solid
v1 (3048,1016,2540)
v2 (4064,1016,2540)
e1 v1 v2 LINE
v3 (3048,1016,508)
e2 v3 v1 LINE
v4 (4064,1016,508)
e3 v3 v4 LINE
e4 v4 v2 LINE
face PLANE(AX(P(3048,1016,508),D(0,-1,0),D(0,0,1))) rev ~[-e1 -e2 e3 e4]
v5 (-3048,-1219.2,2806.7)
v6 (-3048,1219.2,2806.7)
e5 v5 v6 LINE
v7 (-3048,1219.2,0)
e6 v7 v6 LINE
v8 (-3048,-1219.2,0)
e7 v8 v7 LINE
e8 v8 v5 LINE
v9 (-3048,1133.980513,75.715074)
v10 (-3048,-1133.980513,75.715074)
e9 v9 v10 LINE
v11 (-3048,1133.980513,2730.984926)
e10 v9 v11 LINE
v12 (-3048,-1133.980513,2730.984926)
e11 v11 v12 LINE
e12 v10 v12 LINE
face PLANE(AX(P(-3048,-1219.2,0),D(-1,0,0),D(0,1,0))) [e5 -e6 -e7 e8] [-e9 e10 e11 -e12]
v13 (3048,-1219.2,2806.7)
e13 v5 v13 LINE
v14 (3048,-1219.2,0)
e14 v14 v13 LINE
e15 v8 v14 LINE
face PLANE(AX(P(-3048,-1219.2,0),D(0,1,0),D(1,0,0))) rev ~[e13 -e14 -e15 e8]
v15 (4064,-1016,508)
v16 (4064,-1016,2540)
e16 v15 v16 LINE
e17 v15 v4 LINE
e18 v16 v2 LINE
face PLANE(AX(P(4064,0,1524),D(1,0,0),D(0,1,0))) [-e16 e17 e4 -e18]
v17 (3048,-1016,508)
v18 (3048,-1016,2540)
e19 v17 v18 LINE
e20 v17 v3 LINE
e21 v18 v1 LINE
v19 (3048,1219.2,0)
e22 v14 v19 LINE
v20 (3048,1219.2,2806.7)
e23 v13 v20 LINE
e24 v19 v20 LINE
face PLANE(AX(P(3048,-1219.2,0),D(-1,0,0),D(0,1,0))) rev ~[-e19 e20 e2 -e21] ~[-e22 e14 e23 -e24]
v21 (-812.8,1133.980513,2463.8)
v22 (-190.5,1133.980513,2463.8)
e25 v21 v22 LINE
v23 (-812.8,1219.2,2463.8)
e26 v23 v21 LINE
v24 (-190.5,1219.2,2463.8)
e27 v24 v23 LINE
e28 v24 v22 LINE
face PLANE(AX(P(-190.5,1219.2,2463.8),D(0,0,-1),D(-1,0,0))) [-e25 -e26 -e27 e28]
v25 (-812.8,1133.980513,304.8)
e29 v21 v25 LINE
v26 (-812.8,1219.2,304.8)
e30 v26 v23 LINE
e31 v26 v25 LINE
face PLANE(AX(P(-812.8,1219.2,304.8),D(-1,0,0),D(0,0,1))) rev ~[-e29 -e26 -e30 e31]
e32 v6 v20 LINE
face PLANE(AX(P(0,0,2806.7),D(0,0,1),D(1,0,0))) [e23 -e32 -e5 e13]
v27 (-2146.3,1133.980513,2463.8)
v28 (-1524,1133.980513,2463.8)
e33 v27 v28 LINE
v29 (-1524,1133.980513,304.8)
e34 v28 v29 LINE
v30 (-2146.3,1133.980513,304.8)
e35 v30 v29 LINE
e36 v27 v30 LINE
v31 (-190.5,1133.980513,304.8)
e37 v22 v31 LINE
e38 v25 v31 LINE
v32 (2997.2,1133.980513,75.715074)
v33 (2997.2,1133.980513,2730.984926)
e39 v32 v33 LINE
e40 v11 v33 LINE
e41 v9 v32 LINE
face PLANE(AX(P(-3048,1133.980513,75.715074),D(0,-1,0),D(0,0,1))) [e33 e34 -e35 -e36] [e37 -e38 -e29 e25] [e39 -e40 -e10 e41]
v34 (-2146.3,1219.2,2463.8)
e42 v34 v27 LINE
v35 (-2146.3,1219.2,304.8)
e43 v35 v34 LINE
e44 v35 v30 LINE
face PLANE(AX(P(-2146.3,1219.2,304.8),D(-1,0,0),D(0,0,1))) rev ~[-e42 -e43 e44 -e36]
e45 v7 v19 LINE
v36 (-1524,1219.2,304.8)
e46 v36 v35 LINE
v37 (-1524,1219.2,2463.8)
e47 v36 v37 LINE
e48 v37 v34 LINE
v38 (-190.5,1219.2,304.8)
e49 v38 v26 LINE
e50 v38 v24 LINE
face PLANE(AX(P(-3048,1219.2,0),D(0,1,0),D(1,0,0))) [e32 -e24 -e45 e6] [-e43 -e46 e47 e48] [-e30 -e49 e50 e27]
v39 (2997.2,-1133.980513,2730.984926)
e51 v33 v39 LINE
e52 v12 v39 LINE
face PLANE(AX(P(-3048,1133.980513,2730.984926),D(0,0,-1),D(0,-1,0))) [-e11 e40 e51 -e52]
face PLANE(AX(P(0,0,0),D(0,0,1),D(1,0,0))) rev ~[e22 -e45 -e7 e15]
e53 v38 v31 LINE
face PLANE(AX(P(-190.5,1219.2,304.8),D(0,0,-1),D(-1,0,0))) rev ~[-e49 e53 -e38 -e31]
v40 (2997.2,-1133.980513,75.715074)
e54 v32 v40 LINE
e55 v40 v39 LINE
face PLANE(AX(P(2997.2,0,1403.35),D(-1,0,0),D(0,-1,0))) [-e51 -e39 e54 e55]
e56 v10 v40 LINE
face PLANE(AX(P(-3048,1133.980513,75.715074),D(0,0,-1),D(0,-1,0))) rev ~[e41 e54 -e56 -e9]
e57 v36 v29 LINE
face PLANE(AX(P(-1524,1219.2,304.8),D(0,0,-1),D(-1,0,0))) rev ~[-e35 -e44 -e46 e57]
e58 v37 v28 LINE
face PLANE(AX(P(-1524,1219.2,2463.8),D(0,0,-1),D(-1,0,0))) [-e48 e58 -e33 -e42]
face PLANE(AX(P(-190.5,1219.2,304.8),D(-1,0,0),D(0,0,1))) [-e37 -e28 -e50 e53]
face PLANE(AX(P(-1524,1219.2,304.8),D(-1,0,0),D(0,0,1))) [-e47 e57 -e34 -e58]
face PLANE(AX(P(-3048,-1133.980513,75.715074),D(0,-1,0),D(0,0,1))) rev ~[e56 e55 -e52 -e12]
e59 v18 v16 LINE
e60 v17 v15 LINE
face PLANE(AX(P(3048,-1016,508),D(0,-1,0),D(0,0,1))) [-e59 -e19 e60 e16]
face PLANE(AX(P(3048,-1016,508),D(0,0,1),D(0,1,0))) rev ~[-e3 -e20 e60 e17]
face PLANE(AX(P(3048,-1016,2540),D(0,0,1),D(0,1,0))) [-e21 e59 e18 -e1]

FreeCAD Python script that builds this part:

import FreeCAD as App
import Part
import Sketcher
Q = App.Units.Quantity

doc = App.newDocument("Part")
body = doc.addObject("PartDesign::Body", "Body")

sketch1 = body.newObject("Sketcher::SketchObject", "Sketch")
sketch1.AttachmentSupport = (doc.getObject("XY_Plane"), [""])
sketch1.MapMode = "FlatFace"
sketch1.addGeometry([
    Part.LineSegment(App.Vector(-3048, 1219, 0), App.Vector(-3048, -1219, 0)),
    Part.LineSegment(App.Vector(-3048, -1219, 0), App.Vector(3048, -1219, 0)),
    Part.LineSegment(App.Vector(3048, -1219, 0), App.Vector(3048, 1219, 0)),
    Part.LineSegment(App.Vector(3048, 1219, 0), App.Vector(-3048, 1219, 0)),
], False)
sketch1.addConstraint([
    Sketcher.Constraint("Coincident", 0, 2, 1, 1),
    Sketcher.Constraint("Coincident", 1, 2, 2, 1),
    Sketcher.Constraint("Coincident", 2, 2, 3, 1),
    Sketcher.Constraint("Coincident", 3, 2, 0, 1),
    Sketcher.Constraint("Vertical", 0),
    Sketcher.Constraint("Horizontal", 1),
    Sketcher.Constraint("Vertical", 2),
    Sketcher.Constraint("Horizontal", 3),
    Sketcher.Constraint("Symmetric", 0, 2, 2, 2, -1, 1),
    Sketcher.Constraint("DistanceX", 1, 1, 1, 2, Q("240 in")),
    Sketcher.Constraint("DistanceY", 0, 2, 0, 1, Q("96 in")),
])
pad1 = body.newObject("PartDesign::Pad", "Pad")
pad1.Profile = sketch1
pad1.Length = Q("110.5 in")

sketch2 = body.newObject("Sketcher::SketchObject", "Sketch001")
sketch2.AttachmentSupport = (doc.getObject("YZ_Plane"), [""])
sketch2.MapMode = "FlatFace"
sketch2.AttachmentOffset = App.Placement(App.Vector(0, 0, -120 * 25.4), App.Rotation())
sketch2.addGeometry([
    Part.LineSegment(App.Vector(1134, 2731, 0), App.Vector(1134, 76, 0)),
    Part.LineSegment(App.Vector(1134, 76, 0), App.Vector(-1134, 76, 0)),
    Part.LineSegment(App.Vector(-1134, 76, 0), App.Vector(-1134, 2731, 0)),
    Part.LineSegment(App.Vector(-1134, 2731, 0), App.Vector(1134, 2731, 0)),
], False)
sketch2.addConstraint([
    Sketcher.Constraint("Coincident", 0, 2, 1, 1),
    Sketcher.Constraint("Coincident", 1, 2, 2, 1),
    Sketcher.Constraint("Coincident", 2, 2, 3, 1),
    Sketcher.Constraint("Coincident", 3, 2, 0, 1),
    Sketcher.Constraint("Vertical", 0),
    Sketcher.Constraint("Horizontal", 1),
    Sketcher.Constraint("Vertical", 2),
    Sketcher.Constraint("Horizontal", 3),
    Sketcher.Constraint("DistanceY", 0, 2, 0, 1, Q("2655.269852 mm")),
    Sketcher.Constraint("DistanceX", 1, 2, 1, 1, Q("2267.961026 mm")),
    Sketcher.Constraint("DistanceX", -1, 1, 0, 2, Q("1133.980513 mm")),
    Sketcher.Constraint("DistanceY", -1, 1, 0, 2, Q("75.715074 mm")),
])
pocket1 = body.newObject("PartDesign::Pocket", "Pocket")
pocket1.Profile = sketch2
pocket1.Length = Q("238 in")
pocket1.Reversed = True

sketch3 = body.newObject("Sketcher::SketchObject", "Sketch002")
sketch3.AttachmentSupport = (doc.getObject("XZ_Plane"), [""])
sketch3.MapMode = "FlatFace"
sketch3.AttachmentOffset = App.Placement(App.Vector(0, 0, -48 * 25.4), App.Rotation())
sketch3.addGeometry([
    Part.LineSegment(App.Vector(-1524, 2464, 0), App.Vector(-1524, 305, 0)),
    Part.LineSegment(App.Vector(-1524, 305, 0), App.Vector(-2146, 305, 0)),
    Part.LineSegment(App.Vector(-2146, 305, 0), App.Vector(-2146, 2464, 0)),
    Part.LineSegment(App.Vector(-2146, 2464, 0), App.Vector(-1524, 2464, 0)),
    Part.LineSegment(App.Vector(-190, 2464, 0), App.Vector(-190, 305, 0)),
    Part.LineSegment(App.Vector(-190, 305, 0), App.Vector(-813, 305, 0)),
    Part.LineSegment(App.Vector(-813, 305, 0), App.Vector(-813, 2464, 0)),
    Part.LineSegment(App.Vector(-813, 2464, 0), App.Vector(-190, 2464, 0)),
], False)
sketch3.addConstraint([
    Sketcher.Constraint("Coincident", 0, 2, 1, 1),
    Sketcher.Constraint("Coincident", 1, 2, 2, 1),
    Sketcher.Constraint("Coincident", 2, 2, 3, 1),
    Sketcher.Constraint("Coincident", 3, 2, 0, 1),
    Sketcher.Constraint("Coincident", 4, 2, 5, 1),
    Sketcher.Constraint("Coincident", 5, 2, 6, 1),
    Sketcher.Constraint("Coincident", 6, 2, 7, 1),
    Sketcher.Constraint("Coincident", 7, 2, 4, 1),
    Sketcher.Constraint("Vertical", 0),
    Sketcher.Constraint("Horizontal", 1),
    Sketcher.Constraint("Vertical", 2),
    Sketcher.Constraint("Horizontal", 3),
    Sketcher.Constraint("Vertical", 4),
    Sketcher.Constraint("Horizontal", 5),
    Sketcher.Constraint("Vertical", 6),
    Sketcher.Constraint("Horizontal", 7),
    Sketcher.Constraint("Horizontal", 1, 2, 4, 2),
    Sketcher.Constraint("Horizontal", 3, 2, 6, 2),
    Sketcher.Constraint("Equal", 3, 5),
    Sketcher.Constraint("DistanceY", 0, 2, 0, 1, Q("85 in")),
    Sketcher.Constraint("DistanceX", 1, 2, 1, 1, Q("24.5 in")),
    Sketcher.Constraint("DistanceX", 0, 2, -1, 1, Q("60 in")),
    Sketcher.Constraint("DistanceY", -1, 1, 0, 2, Q("12 in")),
    Sketcher.Constraint("DistanceX", 5, 2, -1, 1, Q("32 in")),
])
pocket2 = body.newObject("PartDesign::Pocket", "Pocket001")
pocket2.Profile = sketch3
pocket2.Length = Q("10 in")
pocket2.Reversed = True

sketch4 = body.newObject("Sketcher::SketchObject", "Sketch003")
sketch4.AttachmentSupport = (doc.getObject("YZ_Plane"), [""])
sketch4.MapMode = "FlatFace"
sketch4.AttachmentOffset = App.Placement(App.Vector(0, 0, 120 * 25.4), App.Rotation())
sketch4.addGeometry([
    Part.LineSegment(App.Vector(-1016, 2540, 0), App.Vector(-1016, 508, 0)),
    Part.LineSegment(App.Vector(-1016, 508, 0), App.Vector(1016, 508, 0)),
    Part.LineSegment(App.Vector(1016, 508, 0), App.Vector(1016, 2540, 0)),
    Part.LineSegment(App.Vector(1016, 2540, 0), App.Vector(-1016, 2540, 0)),
], False)
sketch4.addConstraint([
    Sketcher.Constraint("Coincident", 0, 2, 1, 1),
    Sketcher.Constraint("Coincident", 1, 2, 2, 1),
    Sketcher.Constraint("Coincident", 2, 2, 3, 1),
    Sketcher.Constraint("Coincident", 3, 2, 0, 1),
    Sketcher.Constraint("Vertical", 0),
    Sketcher.Constraint("Horizontal", 1),
    Sketcher.Constraint("Vertical", 2),
    Sketcher.Constraint("Horizontal", 3),
    Sketcher.Constraint("Equal", 3, 0),
    Sketcher.Constraint("DistanceX", 1, 1, 1, 2, Q("80 in")),
    Sketcher.Constraint("DistanceX", 0, 2, -1, 1, Q("40 in")),
    Sketcher.Constraint("DistanceY", -1, 1, 0, 2, Q("20 in")),
])
pad2 = body.newObject("PartDesign::Pad", "Pad001")
pad2.Profile = sketch4
pad2.Length = Q("40 in")

doc.recompute()
